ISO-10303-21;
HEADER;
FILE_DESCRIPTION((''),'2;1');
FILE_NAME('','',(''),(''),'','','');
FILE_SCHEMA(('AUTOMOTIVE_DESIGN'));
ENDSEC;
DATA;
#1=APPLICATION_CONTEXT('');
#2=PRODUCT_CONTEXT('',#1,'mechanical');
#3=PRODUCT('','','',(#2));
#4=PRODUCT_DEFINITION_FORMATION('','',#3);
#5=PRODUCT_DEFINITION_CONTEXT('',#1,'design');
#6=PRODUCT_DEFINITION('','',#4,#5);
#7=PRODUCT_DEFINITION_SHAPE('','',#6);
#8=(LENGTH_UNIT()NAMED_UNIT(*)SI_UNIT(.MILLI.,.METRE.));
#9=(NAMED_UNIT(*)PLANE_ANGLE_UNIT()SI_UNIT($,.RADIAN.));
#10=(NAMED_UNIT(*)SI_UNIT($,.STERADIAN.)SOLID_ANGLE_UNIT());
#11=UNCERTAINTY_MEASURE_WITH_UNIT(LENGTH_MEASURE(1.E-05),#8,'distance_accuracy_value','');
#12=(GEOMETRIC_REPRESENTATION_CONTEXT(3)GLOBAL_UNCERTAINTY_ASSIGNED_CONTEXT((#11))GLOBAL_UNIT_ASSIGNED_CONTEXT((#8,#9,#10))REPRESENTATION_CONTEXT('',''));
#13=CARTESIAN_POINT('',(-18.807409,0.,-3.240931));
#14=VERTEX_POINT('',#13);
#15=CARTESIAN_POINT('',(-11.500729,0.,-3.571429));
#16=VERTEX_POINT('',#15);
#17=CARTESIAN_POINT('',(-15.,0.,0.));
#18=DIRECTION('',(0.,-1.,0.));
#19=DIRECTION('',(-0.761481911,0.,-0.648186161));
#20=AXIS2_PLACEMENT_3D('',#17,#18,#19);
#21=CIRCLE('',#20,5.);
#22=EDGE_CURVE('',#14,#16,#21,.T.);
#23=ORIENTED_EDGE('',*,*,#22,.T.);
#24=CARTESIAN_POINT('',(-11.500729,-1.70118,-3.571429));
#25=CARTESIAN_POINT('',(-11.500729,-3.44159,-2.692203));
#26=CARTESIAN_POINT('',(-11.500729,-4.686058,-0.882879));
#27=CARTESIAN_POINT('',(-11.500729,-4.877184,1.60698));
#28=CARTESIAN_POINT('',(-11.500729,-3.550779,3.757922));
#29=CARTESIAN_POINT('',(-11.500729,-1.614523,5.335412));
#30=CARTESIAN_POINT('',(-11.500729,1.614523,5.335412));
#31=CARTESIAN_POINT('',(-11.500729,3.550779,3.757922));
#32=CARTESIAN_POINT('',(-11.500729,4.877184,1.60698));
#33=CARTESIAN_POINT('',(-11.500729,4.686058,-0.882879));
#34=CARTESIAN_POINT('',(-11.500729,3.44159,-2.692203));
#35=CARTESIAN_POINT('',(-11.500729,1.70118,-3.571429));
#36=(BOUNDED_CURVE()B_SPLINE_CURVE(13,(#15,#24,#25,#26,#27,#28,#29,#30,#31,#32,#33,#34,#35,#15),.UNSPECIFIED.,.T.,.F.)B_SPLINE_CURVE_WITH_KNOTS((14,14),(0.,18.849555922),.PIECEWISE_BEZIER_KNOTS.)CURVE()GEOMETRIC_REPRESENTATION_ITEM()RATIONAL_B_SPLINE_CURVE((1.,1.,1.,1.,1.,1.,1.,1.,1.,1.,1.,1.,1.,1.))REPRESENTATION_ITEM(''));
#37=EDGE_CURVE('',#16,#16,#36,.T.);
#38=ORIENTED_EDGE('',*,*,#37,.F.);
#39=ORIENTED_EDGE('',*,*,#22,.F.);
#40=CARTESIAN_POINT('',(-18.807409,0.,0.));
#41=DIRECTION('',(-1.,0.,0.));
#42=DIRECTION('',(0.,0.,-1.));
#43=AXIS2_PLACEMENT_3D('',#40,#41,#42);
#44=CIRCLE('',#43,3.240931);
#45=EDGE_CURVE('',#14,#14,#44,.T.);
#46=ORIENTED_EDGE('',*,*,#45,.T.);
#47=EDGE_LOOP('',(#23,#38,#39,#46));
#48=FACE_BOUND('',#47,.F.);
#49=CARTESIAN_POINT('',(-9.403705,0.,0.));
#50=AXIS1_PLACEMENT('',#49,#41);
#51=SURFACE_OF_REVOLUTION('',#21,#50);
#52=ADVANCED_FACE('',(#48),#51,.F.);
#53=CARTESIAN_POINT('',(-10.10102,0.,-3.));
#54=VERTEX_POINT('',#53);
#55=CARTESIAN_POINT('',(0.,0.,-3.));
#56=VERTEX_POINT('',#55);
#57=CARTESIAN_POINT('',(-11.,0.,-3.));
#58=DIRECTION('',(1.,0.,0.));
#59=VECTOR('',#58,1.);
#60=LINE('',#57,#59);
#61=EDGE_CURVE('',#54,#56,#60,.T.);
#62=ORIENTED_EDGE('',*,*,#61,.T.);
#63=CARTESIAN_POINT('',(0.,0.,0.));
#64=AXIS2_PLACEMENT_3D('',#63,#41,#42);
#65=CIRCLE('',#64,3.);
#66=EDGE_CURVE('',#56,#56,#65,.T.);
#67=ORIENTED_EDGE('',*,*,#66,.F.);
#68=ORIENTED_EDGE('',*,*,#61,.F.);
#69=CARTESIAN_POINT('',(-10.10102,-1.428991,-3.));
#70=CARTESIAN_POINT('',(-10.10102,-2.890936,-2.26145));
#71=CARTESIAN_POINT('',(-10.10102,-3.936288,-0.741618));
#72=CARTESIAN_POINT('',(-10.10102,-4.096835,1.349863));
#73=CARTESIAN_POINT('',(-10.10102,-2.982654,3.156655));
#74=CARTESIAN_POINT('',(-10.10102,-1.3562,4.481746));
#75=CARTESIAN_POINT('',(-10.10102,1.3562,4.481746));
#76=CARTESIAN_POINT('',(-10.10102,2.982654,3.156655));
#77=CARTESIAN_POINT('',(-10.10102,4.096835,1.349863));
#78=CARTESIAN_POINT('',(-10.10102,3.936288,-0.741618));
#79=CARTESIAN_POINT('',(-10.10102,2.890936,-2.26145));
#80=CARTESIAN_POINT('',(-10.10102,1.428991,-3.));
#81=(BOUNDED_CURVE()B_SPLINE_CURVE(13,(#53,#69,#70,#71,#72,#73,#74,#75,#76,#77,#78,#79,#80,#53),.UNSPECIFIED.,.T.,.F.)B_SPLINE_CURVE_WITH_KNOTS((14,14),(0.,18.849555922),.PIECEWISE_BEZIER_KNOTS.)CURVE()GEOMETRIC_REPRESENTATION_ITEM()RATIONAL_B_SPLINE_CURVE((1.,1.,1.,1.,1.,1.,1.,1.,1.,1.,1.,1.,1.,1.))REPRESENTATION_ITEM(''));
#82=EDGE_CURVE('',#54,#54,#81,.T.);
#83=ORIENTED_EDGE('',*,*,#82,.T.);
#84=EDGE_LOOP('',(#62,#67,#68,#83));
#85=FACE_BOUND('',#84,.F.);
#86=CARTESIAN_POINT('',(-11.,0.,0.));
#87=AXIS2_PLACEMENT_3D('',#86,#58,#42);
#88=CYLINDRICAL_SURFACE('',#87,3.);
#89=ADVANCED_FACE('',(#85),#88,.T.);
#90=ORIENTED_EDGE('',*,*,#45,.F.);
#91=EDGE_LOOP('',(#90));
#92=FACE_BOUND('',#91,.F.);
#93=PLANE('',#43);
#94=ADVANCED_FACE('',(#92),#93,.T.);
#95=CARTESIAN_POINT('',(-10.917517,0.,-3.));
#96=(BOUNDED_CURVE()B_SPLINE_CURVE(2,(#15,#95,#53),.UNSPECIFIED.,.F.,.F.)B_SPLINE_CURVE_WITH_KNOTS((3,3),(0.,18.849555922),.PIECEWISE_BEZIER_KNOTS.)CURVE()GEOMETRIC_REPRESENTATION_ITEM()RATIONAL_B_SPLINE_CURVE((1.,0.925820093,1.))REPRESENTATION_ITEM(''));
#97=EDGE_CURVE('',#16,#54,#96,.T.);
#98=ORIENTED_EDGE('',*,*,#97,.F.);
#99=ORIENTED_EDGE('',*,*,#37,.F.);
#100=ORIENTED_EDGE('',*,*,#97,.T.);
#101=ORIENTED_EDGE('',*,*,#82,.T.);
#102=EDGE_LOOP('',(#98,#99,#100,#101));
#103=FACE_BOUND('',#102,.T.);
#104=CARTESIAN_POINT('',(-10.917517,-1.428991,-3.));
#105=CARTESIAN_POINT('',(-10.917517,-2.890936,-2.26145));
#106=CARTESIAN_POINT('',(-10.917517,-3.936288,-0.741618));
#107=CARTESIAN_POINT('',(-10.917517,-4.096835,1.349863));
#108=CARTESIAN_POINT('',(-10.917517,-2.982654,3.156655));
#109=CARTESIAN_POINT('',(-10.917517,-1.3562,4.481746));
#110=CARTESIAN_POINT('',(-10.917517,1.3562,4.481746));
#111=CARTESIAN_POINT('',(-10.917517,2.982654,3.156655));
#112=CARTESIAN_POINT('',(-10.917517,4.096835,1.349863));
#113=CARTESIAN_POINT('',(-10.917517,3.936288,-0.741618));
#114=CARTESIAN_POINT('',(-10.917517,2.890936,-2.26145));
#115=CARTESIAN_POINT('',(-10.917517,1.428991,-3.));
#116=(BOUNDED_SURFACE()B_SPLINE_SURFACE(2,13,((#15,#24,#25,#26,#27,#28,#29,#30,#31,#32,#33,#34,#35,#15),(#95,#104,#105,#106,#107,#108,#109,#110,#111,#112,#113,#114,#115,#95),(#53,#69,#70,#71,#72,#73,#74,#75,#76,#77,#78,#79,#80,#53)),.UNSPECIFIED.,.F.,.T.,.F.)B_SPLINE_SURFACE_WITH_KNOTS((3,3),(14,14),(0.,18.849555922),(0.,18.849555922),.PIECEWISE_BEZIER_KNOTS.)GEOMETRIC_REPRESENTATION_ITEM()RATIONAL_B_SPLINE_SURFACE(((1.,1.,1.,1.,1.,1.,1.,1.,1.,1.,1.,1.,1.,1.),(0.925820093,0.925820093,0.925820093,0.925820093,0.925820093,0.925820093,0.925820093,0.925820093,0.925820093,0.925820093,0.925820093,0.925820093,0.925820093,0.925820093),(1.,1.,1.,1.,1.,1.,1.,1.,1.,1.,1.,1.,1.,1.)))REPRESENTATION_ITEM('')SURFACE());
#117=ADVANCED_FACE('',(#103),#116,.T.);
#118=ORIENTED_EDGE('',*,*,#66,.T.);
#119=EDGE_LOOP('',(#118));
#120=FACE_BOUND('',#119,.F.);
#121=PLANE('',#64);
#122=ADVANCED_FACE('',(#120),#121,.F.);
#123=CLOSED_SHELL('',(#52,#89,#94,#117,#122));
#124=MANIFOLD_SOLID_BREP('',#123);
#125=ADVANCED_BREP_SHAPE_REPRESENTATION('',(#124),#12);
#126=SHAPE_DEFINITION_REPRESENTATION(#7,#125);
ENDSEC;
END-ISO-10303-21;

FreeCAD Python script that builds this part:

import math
import FreeCAD as App
import Part
import Sketcher

V = App.Vector
Q = App.Units.Quantity


def edges_at(feature, points):
    """Names of the edges that pass closest to the given points."""
    edges = feature.Shape.Edges
    near = lambda p: min(range(len(edges)), key=lambda i: edges[i].distToShape(Part.Vertex(*p))[0])
    return sorted({f"Edge{near(p) + 1}" for p in points})

doc = App.newDocument("Part")
body = doc.addObject("PartDesign::Body", "Body")

# Sketch on XZ plane
sketch1 = body.newObject("Sketcher::SketchObject", "Sketch")
sketch1.AttachmentSupport = (doc.getObject("XZ_Plane"), [""])
sketch1.MapMode = "FlatFace"
sketch1.addGeometry([
    Part.LineSegment(V(0, -3, 0), V(0, 0, 0)),  # 0
    Part.LineSegment(V(0, 0, 0), V(-18.8, 0, 0)),  # 1
    Part.LineSegment(V(-18.8, 0, 0), V(-18.8, -3.2, 0)),  # 2
    Part.ArcOfCircle(Part.Circle(V(-15, 0, 0), V(0, 0, 1), 5), math.radians(-140), math.radians(-37)),  # 3
    Part.LineSegment(V(-11, -3, 0), V(0, -3, 0)),  # 4
], False)
sketch1.addConstraint([
    Sketcher.Constraint("Coincident", 0, 2, 1, 1),
    Sketcher.Constraint("Coincident", 1, 2, 2, 1),
    Sketcher.Constraint("Coincident", 2, 2, 3, 1),
    Sketcher.Constraint("Coincident", 3, 2, 4, 1),
    Sketcher.Constraint("Coincident", 4, 2, 0, 1),
    Sketcher.Constraint("Vertical", 0),
    Sketcher.Constraint("Horizontal", 1),
    Sketcher.Constraint("Vertical", 2),
    Sketcher.Constraint("Horizontal", 4),
    Sketcher.Constraint("Coincident", 0, 2, -1, 1),
    Sketcher.Constraint("PointOnObject", 3, 3, -1),
    Sketcher.Constraint("Radius", 3, Q("5 mm")),
    Sketcher.Constraint("DistanceX", 4, 1, 4, 2, Q("11 mm")),
    Sketcher.Constraint("DistanceY", 0, 1, 0, 2, Q("3 mm")),
    Sketcher.Constraint("DistanceX", 1, 2, 1, 1, Q("18.807409 mm")),
])
revolution = body.newObject("PartDesign::Revolution", "Revolution")
revolution.Profile = sketch1
revolution.ReferenceAxis = (sketch1, ["H_Axis"])
revolution.Angle = 360
doc.recompute()

fillet = body.newObject("PartDesign::Fillet", "Fillet")
fillet.Base = (revolution, edges_at(revolution, [(-11, 0, 3)]))
fillet.Radius = 2

doc.recompute()
